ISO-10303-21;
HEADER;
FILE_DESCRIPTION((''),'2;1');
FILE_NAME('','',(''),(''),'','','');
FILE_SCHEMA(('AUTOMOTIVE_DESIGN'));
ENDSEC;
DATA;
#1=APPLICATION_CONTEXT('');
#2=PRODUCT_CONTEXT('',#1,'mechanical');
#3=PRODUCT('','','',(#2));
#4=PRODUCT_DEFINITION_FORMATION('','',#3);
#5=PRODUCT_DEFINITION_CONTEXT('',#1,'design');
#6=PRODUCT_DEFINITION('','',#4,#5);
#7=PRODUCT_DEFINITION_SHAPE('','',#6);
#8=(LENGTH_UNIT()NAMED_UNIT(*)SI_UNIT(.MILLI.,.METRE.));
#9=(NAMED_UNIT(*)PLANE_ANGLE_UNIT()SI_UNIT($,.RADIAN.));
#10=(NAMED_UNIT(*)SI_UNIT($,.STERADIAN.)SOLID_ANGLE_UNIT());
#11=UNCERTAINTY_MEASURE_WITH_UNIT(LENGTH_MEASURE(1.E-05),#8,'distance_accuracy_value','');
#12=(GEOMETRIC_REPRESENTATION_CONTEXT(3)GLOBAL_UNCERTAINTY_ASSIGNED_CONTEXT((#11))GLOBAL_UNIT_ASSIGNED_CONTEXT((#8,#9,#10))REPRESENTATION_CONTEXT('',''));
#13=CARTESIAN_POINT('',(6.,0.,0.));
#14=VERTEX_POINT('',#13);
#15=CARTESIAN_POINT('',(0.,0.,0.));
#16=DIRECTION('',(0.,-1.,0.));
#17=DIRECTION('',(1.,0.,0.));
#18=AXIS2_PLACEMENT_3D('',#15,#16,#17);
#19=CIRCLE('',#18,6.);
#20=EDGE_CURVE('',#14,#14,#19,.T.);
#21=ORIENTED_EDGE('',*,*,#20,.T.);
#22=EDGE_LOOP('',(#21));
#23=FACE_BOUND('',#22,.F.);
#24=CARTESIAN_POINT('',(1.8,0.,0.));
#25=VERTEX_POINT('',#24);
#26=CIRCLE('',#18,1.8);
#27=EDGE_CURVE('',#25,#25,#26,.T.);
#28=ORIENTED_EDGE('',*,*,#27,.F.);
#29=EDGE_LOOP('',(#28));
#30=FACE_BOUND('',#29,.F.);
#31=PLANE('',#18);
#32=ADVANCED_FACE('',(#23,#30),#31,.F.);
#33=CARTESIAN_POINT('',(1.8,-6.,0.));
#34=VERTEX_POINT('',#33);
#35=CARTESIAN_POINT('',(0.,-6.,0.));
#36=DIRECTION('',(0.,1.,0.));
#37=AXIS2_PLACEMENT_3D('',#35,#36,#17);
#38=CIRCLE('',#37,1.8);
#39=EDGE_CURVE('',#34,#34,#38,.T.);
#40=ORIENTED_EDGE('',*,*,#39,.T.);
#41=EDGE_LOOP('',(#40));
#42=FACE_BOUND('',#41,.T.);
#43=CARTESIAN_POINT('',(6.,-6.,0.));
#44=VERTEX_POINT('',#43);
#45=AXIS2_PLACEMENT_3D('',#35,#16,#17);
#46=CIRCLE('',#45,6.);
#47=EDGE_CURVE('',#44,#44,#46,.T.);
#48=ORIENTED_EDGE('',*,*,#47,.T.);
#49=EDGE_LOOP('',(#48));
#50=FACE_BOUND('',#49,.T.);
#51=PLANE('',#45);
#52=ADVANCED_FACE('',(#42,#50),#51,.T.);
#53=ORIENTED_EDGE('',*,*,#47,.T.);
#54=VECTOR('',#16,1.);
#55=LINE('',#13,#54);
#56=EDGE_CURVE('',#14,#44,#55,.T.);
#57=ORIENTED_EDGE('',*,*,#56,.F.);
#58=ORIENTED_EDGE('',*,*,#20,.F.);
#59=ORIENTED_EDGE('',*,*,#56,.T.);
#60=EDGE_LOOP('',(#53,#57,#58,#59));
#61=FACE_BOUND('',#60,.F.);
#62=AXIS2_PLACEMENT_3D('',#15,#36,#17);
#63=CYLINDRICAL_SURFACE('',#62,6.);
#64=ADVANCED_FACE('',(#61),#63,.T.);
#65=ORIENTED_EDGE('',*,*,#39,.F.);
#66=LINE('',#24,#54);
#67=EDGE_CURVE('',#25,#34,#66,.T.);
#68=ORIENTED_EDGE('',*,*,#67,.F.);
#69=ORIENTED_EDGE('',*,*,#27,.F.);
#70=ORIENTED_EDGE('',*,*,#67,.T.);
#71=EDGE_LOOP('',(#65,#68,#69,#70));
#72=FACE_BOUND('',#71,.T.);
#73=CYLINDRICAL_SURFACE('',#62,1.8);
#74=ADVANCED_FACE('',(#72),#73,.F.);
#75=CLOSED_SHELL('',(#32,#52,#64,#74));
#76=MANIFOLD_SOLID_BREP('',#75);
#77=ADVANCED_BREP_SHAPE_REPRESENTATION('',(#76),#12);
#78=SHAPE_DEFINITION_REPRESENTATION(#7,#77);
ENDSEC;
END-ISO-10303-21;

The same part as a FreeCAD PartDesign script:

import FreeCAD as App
import Part
import Sketcher
Q = App.Units.Quantity

doc = App.newDocument("Part")
body = doc.addObject("PartDesign::Body", "Body")

sketch1 = body.newObject("Sketcher::SketchObject", "Sketch")
sketch1.AttachmentSupport = (doc.getObject("XZ_Plane"), [""])
sketch1.MapMode = "FlatFace"
sketch1.addGeometry(Part.Circle(App.Vector(0, 0, 0), App.Vector(0, 0, 1), 1.8), False)
sketch1.addConstraint(Sketcher.Constraint("Coincident", 0, 3, -1, 1))
sketch1.addConstraint(Sketcher.Constraint("Diameter", 0, Q("3.6 mm")))
pad1 = body.newObject("PartDesign::Pad", "Pad")
pad1.Profile = sketch1
pad1.Length = 20
body2 = doc.addObject("PartDesign::Body", "Body001")

sketch2 = body2.newObject("Sketcher::SketchObject", "Sketch001")
sketch2.AttachmentSupport = (doc.getObject("XZ_Plane001"), [""])
sketch2.MapMode = "FlatFace"
sketch2.addGeometry(Part.Circle(App.Vector(0, 0, 0), App.Vector(0, 0, 1), 6), False)
sketch2.addConstraint(Sketcher.Constraint("Coincident", 0, 3, -1, 1))
sketch2.addConstraint(Sketcher.Constraint("Diameter", 0, Q("12 mm")))
pad2 = body2.newObject("PartDesign::Pad", "Pad001")
pad2.Profile = sketch2
pad2.Length = 6
doc.recompute()

boolean = body2.newObject("PartDesign::Boolean", "Boolean")
boolean.Type = "Cut"
boolean.addObjects([body])

doc.recompute()
